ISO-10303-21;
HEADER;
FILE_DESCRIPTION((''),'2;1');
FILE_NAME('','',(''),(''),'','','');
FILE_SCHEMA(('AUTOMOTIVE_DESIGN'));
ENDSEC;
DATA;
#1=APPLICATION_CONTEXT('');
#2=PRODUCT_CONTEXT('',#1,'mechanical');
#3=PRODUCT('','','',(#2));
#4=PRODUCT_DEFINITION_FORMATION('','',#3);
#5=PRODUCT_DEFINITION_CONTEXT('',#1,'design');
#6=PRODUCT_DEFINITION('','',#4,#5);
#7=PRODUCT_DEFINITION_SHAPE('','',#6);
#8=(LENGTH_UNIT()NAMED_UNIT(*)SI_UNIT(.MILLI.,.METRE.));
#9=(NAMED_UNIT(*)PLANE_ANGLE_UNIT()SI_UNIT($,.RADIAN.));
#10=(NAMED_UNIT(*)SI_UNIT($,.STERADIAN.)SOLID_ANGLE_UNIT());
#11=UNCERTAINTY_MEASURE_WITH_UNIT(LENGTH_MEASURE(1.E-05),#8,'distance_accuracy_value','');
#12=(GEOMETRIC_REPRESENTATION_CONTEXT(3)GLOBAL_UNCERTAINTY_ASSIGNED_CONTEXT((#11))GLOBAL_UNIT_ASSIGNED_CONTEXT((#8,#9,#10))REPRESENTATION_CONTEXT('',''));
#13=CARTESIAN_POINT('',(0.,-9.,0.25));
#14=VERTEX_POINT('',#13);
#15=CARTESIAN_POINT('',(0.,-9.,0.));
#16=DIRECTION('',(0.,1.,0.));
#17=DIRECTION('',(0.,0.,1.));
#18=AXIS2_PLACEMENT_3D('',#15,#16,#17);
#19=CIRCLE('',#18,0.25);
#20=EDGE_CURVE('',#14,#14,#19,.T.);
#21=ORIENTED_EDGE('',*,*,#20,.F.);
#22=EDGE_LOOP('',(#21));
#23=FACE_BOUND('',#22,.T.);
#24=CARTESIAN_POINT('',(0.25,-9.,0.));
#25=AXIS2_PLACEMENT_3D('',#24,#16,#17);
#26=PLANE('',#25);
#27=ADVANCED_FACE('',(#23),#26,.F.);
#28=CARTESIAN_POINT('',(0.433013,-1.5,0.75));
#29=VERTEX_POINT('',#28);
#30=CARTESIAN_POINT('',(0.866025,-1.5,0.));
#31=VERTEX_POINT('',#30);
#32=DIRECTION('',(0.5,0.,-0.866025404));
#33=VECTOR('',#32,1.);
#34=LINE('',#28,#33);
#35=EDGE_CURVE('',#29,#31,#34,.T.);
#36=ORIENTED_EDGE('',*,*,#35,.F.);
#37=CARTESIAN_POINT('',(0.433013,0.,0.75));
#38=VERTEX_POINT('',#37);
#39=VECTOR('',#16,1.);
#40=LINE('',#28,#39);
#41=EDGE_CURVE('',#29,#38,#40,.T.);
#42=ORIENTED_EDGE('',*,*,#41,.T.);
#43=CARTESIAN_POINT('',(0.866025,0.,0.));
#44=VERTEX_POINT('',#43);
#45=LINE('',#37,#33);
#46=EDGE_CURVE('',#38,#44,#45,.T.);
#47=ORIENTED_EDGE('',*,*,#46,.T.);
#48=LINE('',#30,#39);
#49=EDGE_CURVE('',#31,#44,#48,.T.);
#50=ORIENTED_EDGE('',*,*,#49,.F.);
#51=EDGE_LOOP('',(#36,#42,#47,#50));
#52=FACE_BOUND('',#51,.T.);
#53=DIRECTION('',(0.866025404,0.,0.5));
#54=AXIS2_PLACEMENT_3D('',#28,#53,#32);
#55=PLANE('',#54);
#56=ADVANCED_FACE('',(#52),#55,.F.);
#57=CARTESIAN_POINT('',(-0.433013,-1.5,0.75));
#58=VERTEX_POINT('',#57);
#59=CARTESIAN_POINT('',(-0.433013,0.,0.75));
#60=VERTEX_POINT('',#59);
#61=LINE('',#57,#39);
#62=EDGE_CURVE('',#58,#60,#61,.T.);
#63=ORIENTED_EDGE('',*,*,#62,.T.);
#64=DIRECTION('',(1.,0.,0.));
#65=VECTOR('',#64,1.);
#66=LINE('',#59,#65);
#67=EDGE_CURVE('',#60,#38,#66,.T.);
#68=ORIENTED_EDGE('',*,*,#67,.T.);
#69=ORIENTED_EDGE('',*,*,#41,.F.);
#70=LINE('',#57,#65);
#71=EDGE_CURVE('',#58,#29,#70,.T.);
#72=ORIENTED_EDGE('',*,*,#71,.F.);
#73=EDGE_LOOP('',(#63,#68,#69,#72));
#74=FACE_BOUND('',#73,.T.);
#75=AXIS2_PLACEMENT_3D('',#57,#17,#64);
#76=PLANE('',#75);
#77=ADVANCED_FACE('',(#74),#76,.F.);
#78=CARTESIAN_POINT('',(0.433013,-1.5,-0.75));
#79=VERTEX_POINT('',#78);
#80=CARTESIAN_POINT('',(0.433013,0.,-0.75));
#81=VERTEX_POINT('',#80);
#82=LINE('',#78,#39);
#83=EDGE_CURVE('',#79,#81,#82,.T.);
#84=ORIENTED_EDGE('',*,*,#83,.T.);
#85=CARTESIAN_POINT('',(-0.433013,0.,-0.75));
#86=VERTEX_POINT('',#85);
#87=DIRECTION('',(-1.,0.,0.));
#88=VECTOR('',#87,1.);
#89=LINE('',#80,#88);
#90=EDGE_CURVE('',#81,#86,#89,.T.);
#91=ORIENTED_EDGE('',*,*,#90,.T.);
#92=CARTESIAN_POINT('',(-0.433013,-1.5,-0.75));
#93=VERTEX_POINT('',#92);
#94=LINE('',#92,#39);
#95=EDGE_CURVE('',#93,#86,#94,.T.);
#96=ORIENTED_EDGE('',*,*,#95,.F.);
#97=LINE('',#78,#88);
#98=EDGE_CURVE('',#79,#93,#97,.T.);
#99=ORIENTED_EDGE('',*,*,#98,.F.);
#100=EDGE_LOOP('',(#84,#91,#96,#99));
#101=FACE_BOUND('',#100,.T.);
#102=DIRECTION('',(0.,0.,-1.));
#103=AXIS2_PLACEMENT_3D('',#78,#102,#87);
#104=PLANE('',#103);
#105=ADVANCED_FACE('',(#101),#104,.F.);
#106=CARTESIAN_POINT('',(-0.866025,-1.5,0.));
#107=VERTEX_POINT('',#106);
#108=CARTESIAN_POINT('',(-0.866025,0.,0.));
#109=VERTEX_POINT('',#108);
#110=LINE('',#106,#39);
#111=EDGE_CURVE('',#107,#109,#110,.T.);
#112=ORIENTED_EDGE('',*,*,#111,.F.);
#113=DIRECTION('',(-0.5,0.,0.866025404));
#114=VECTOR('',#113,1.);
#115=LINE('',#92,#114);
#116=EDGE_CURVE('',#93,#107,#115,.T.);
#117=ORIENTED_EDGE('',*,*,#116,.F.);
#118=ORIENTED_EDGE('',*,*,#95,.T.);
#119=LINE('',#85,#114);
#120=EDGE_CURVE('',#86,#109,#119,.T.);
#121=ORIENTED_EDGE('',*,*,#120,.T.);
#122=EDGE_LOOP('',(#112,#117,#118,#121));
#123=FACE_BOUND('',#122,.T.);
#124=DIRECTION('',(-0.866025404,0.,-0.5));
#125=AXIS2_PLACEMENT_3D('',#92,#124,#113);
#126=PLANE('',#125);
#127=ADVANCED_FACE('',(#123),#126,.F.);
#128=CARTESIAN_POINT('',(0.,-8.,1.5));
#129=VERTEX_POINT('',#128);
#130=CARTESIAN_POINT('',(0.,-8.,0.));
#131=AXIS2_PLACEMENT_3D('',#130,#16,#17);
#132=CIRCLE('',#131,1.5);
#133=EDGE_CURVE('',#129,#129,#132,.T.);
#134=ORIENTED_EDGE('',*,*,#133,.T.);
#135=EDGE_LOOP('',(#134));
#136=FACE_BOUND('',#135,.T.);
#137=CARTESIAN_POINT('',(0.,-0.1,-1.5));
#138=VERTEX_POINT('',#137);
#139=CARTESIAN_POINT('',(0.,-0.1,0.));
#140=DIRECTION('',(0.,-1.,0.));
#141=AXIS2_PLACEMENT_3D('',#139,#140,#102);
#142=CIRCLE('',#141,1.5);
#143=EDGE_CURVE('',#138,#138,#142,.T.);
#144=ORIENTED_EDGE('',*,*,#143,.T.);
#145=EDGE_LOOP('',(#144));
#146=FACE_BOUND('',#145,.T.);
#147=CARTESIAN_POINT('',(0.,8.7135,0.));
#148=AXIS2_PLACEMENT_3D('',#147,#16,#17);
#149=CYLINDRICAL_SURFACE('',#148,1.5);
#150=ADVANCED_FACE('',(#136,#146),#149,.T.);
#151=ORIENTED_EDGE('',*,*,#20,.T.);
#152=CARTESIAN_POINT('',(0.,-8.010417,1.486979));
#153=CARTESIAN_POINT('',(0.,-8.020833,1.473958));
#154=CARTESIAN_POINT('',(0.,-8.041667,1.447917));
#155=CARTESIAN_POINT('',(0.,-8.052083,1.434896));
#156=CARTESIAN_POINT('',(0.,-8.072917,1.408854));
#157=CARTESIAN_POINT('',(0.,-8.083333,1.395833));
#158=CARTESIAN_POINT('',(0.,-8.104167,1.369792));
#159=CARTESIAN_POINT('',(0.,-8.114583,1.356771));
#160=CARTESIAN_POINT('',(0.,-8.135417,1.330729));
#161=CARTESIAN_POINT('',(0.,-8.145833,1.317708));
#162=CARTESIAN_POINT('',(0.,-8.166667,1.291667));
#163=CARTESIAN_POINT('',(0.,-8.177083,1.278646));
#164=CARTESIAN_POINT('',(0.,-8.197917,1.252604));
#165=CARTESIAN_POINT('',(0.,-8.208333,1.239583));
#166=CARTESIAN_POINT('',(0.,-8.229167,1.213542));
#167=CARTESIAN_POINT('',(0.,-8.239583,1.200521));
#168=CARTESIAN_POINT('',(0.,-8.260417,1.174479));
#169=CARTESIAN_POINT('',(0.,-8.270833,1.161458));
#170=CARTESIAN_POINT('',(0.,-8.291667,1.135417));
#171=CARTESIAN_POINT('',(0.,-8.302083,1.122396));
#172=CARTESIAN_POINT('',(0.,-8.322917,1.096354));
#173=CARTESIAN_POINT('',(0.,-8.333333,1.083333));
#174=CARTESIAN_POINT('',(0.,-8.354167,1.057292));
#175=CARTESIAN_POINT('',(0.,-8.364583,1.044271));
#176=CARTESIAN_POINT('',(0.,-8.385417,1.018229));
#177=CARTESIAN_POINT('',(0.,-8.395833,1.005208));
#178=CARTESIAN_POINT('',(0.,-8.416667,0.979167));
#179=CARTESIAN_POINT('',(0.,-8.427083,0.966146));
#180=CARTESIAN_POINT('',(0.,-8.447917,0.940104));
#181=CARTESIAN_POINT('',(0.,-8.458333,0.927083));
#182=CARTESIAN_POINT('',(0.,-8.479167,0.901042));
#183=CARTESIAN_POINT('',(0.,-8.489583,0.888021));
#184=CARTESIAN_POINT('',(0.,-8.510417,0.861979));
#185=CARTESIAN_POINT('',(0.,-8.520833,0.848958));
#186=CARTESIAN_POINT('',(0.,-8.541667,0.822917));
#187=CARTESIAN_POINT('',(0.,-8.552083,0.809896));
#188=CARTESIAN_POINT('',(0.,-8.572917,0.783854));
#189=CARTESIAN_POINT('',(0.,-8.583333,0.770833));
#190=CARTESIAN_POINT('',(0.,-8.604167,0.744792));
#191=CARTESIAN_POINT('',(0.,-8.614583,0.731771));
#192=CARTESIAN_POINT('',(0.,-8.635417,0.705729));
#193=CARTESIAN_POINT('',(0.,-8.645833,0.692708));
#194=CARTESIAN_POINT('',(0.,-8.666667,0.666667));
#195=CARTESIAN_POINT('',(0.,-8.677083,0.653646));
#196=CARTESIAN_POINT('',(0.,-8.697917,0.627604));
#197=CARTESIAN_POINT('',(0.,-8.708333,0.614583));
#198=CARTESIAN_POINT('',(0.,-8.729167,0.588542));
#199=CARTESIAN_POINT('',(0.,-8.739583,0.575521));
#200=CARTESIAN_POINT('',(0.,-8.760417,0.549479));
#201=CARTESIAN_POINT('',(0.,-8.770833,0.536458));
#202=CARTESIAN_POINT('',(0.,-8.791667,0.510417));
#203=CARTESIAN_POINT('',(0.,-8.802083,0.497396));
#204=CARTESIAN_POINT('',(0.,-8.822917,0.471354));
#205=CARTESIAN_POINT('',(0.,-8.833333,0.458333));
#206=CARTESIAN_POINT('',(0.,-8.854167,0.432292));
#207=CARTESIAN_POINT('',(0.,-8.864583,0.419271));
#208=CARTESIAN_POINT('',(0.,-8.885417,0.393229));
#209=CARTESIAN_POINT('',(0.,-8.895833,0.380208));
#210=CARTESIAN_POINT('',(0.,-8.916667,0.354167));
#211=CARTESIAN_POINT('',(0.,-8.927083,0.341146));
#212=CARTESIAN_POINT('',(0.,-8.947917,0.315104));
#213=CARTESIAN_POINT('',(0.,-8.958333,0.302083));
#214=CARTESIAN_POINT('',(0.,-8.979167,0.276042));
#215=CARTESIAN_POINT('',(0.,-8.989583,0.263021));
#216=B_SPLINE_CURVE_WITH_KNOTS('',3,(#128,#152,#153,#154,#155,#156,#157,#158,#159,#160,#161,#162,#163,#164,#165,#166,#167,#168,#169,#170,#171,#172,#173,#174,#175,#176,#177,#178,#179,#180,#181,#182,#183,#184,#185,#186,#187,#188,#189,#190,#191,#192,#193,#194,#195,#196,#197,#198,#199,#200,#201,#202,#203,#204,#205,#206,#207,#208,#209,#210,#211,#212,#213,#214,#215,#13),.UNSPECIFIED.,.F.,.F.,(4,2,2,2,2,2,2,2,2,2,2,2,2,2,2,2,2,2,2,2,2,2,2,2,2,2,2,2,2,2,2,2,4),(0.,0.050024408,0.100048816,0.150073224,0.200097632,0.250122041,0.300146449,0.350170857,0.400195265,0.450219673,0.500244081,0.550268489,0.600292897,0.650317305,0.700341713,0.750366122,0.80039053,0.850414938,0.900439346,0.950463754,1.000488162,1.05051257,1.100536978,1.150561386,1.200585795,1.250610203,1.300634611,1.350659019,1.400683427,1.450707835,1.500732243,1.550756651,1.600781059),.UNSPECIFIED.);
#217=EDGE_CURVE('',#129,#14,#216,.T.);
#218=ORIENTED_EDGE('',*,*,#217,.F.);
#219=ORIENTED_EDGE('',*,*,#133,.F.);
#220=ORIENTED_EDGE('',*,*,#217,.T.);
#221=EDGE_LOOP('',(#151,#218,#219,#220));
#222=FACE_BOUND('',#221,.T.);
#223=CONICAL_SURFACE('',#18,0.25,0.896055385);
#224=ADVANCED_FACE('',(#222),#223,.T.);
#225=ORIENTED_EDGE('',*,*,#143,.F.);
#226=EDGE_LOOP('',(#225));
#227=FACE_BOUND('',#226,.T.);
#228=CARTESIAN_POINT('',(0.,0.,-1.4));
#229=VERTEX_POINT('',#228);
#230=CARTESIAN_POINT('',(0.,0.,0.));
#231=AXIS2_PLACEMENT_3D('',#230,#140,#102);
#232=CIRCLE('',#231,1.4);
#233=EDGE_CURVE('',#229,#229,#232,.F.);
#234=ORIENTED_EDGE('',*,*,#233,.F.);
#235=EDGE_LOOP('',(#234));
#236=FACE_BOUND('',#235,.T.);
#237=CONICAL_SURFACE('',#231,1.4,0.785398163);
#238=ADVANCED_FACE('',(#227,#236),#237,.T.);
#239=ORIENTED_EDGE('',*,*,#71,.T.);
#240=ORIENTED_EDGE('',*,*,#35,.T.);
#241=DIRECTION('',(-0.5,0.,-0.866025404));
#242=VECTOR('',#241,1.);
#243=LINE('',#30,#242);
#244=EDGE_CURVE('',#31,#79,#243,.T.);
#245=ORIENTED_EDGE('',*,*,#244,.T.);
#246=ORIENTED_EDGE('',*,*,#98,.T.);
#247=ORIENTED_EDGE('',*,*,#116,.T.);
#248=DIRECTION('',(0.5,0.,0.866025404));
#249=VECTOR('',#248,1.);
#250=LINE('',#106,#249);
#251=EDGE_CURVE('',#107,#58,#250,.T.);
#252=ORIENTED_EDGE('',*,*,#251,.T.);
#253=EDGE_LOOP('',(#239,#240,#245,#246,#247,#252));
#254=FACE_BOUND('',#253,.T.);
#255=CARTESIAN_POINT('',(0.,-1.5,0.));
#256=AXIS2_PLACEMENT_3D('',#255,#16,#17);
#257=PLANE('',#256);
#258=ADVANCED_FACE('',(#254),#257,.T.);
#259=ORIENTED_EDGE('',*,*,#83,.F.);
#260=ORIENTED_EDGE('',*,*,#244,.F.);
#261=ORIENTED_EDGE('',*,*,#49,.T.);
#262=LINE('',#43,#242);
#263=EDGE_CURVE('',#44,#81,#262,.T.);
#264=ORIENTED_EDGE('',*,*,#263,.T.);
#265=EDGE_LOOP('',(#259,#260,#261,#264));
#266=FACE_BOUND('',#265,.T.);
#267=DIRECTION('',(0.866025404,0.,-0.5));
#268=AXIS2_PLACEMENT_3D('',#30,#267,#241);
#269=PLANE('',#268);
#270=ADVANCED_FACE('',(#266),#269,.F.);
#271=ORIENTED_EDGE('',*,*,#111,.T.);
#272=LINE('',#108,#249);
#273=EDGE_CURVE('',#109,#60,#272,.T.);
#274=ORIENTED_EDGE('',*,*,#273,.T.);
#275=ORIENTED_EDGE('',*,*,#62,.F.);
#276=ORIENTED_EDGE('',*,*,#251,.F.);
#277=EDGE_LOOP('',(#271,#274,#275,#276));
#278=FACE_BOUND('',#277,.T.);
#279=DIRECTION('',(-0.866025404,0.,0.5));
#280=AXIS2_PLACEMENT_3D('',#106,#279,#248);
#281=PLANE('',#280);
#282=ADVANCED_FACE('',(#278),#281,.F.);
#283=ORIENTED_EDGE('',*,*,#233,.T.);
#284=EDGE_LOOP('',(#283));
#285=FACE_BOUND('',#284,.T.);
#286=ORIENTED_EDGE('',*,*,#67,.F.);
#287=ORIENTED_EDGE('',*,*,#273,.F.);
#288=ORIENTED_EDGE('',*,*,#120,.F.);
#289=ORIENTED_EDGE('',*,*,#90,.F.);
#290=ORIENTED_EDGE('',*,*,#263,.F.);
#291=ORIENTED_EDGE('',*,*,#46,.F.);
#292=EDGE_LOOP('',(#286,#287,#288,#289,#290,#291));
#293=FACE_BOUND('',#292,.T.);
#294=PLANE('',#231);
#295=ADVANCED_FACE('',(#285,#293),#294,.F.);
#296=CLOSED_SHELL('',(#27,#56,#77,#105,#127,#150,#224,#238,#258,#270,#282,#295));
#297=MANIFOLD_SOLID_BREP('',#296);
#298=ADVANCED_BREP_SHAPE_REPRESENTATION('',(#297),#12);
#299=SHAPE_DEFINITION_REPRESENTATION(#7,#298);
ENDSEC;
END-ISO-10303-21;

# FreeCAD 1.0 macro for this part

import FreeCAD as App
import Part
import Sketcher
from FreeCAD import Vector
Q = App.Units.Quantity


def edges_at(feature, points):
    """Names of the edges that pass closest to the given points."""
    edges = feature.Shape.Edges
    near = lambda p: min(range(len(edges)), key=lambda i: edges[i].distToShape(Part.Vertex(*p))[0])
    return sorted({f"Edge{near(p) + 1}" for p in points})

doc = App.newDocument("Part")
body = doc.addObject("PartDesign::Body", "Body")

sketch1 = body.newObject("Sketcher::SketchObject", "Sketch")
sketch1.AttachmentSupport = (doc.getObject("XY_Plane"), [""])
sketch1.MapMode = "FlatFace"
sketch1.addGeometry(Part.LineSegment(Vector(1.5, 0, 0), Vector(0, 0, 0)), False)
sketch1.addGeometry(Part.LineSegment(Vector(0, 0, 0), Vector(0, -9, 0)), False)
sketch1.addGeometry(Part.LineSegment(Vector(0, -9, 0), Vector(0.25, -9, 0)), False)
sketch1.addGeometry(Part.LineSegment(Vector(0.25, -9, 0), Vector(1.5, -8, 0)), False)
sketch1.addGeometry(Part.LineSegment(Vector(1.5, -8, 0), Vector(1.5, 0, 0)), False)
sketch1.addConstraint(Sketcher.Constraint("Coincident", 0, 2, 1, 1))
sketch1.addConstraint(Sketcher.Constraint("Coincident", 1, 2, 2, 1))
sketch1.addConstraint(Sketcher.Constraint("Coincident", 2, 2, 3, 1))
sketch1.addConstraint(Sketcher.Constraint("Coincident", 3, 2, 4, 1))
sketch1.addConstraint(Sketcher.Constraint("Coincident", 4, 2, 0, 1))
sketch1.addConstraint(Sketcher.Constraint("Horizontal", 0))
sketch1.addConstraint(Sketcher.Constraint("Vertical", 1))
sketch1.addConstraint(Sketcher.Constraint("Horizontal", 2))
sketch1.addConstraint(Sketcher.Constraint("Vertical", 4))
sketch1.addConstraint(Sketcher.Constraint("Coincident", 0, 2, -1, 1))
sketch1.addConstraint(Sketcher.Constraint("DistanceY", 1, 2, 1, 1, Q("9 mm")))
sketch1.addConstraint(Sketcher.Constraint("DistanceY", 4, 1, 4, 2, Q("8 mm")))
sketch1.addConstraint(Sketcher.Constraint("DistanceX", 0, 2, 0, 1, Q("1.5 mm")))
sketch1.addConstraint(Sketcher.Constraint("DistanceX", 2, 1, 2, 2, Q("0.25 mm")))
revolution = body.newObject("PartDesign::Revolution", "Revolution")
revolution.Profile = sketch1
revolution.ReferenceAxis = (sketch1, ["V_Axis"])
revolution.Angle = 360

sketch2 = body.newObject("Sketcher::SketchObject", "Sketch001")
sketch2.AttachmentSupport = (doc.getObject("XZ_Plane"), [""])
sketch2.MapMode = "FlatFace"
sketch2.addGeometry(Part.LineSegment(Vector(-0.433013, 0.75, 0), Vector(0.433013, 0.75, 0)), False)
sketch2.addGeometry(Part.LineSegment(Vector(0.433013, 0.75, 0), Vector(0.866025, 0, 0)), False)
sketch2.addGeometry(Part.LineSegment(Vector(0.866025, 0, 0), Vector(0.433013, -0.75, 0)), False)
sketch2.addGeometry(Part.LineSegment(Vector(0.433013, -0.75, 0), Vector(-0.433013, -0.75, 0)), False)
sketch2.addGeometry(Part.LineSegment(Vector(-0.433013, -0.75, 0), Vector(-0.866025, 0, 0)), False)
sketch2.addGeometry(Part.LineSegment(Vector(-0.866025, 0, 0), Vector(-0.433013, 0.75, 0)), False)
sketch2.addConstraint(Sketcher.Constraint("Coincident", 0, 2, 1, 1))
sketch2.addConstraint(Sketcher.Constraint("Coincident", 1, 2, 2, 1))
sketch2.addConstraint(Sketcher.Constraint("Coincident", 2, 2, 3, 1))
sketch2.addConstraint(Sketcher.Constraint("Coincident", 3, 2, 4, 1))
sketch2.addConstraint(Sketcher.Constraint("Coincident", 4, 2, 5, 1))
sketch2.addConstraint(Sketcher.Constraint("Coincident", 5, 2, 0, 1))
sketch2.addConstraint(Sketcher.Constraint("Horizontal", 0))
sketch2.addConstraint(Sketcher.Constraint("Horizontal", 3))
sketch2.addConstraint(Sketcher.Constraint("Symmetric", 0, 2, 3, 2, -1, 1))
sketch2.addConstraint(Sketcher.Constraint("Symmetric", 1, 2, 4, 2, -1, 1))
sketch2.addConstraint(Sketcher.Constraint("PointOnObject", 1, 2, -1))
sketch2.addConstraint(Sketcher.Constraint("Parallel", 2, 5))
sketch2.addConstraint(Sketcher.Constraint("Vertical", 0, 2, 2, 2))
sketch2.addConstraint(Sketcher.Constraint("Angle", 1, Q("-60 deg")))
sketch2.addConstraint(Sketcher.Constraint("DistanceY", 2, 2, 0, 2, Q("1.5 mm")))
sketch2.addConstraint(Sketcher.Constraint("DistanceX", 0, 1, 0, 2, Q("0.866025 mm")))
pocket1 = body.newObject("PartDesign::Pocket", "Pocket")
pocket1.Profile = sketch2
pocket1.Length = 1.5
pocket1.Reversed = True
doc.recompute()

chamfer = body.newObject("PartDesign::Chamfer", "Chamfer")
chamfer.Base = (pocket1, edges_at(pocket1, [(0, 0, -1.5)]))
chamfer.Size = 0.1

doc.recompute()
